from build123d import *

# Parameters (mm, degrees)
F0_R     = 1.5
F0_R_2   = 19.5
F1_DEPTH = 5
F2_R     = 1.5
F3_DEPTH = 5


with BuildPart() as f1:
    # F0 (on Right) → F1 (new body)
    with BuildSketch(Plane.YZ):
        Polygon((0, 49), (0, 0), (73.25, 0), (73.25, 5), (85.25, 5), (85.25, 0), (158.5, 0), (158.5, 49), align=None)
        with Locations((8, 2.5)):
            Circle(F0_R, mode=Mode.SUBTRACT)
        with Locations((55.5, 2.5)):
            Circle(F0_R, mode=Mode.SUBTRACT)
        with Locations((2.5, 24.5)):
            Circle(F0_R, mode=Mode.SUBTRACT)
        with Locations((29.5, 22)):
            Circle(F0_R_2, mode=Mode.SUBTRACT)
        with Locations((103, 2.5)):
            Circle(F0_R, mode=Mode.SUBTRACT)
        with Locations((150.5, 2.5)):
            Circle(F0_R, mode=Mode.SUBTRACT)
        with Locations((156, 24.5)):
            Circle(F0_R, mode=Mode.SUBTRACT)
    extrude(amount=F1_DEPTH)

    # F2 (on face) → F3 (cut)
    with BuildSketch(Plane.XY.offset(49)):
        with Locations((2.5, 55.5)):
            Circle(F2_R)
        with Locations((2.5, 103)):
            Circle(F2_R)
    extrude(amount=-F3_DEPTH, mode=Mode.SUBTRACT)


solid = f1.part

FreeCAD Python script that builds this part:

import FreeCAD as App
import Part
import Sketcher
from FreeCAD import Vector

doc = App.newDocument("Part")
body = doc.addObject("PartDesign::Body", "Body")

# Sketch on YZ plane
sketch1 = doc.addObject("Sketcher::SketchObject", "Sketch")
body.addObject(sketch1)
sketch1.AttachmentSupport = (doc.YZ_Plane, [""])
sketch1.MapMode = "FlatFace"
sketch1.addGeometry(Part.LineSegment(Vector(0, 49, 0), Vector(0, 0, 0)), False)
sketch1.addGeometry(Part.LineSegment(Vector(0, 0, 0), Vector(73.2, 0, 0)), False)
sketch1.addGeometry(Part.LineSegment(Vector(73.2, 0, 0), Vector(73.2, 5, 0)), False)
sketch1.addGeometry(Part.LineSegment(Vector(73.2, 5, 0), Vector(85.2, 5, 0)), False)
sketch1.addGeometry(Part.LineSegment(Vector(85.2, 5, 0), Vector(85.2, 0, 0)), False)
sketch1.addGeometry(Part.LineSegment(Vector(85.2, 0, 0), Vector(158.5, 0, 0)), False)
sketch1.addGeometry(Part.LineSegment(Vector(158.5, 0, 0), Vector(158.5, 49, 0)), False)
sketch1.addGeometry(Part.LineSegment(Vector(158.5, 49, 0), Vector(0, 49, 0)), False)
sketch1.addGeometry(Part.Circle(Vector(8, 2.5, 0), Vector(0, 0, 1), 1.5), False)
sketch1.addGeometry(Part.Circle(Vector(55.5, 2.5, 0), Vector(0, 0, 1), 1.5), False)
sketch1.addGeometry(Part.Circle(Vector(103, 2.5, 0), Vector(0, 0, 1), 1.5), False)
sketch1.addGeometry(Part.Circle(Vector(150.5, 2.5, 0), Vector(0, 0, 1), 1.5), False)
sketch1.addGeometry(Part.Circle(Vector(2.5, 24.5, 0), Vector(0, 0, 1), 1.5), False)
sketch1.addGeometry(Part.Circle(Vector(29.5, 22, 0), Vector(0, 0, 1), 19.5), False)
sketch1.addGeometry(Part.Circle(Vector(156, 24.5, 0), Vector(0, 0, 1), 1.5), False)
sketch1.addConstraint(Sketcher.Constraint("Coincident", 0, 2, 1, 1))
sketch1.addConstraint(Sketcher.Constraint("Coincident", 1, 2, 2, 1))
sketch1.addConstraint(Sketcher.Constraint("Coincident", 2, 2, 3, 1))
sketch1.addConstraint(Sketcher.Constraint("Coincident", 3, 2, 4, 1))
sketch1.addConstraint(Sketcher.Constraint("Coincident", 4, 2, 5, 1))
sketch1.addConstraint(Sketcher.Constraint("Coincident", 5, 2, 6, 1))
sketch1.addConstraint(Sketcher.Constraint("Coincident", 6, 2, 7, 1))
sketch1.addConstraint(Sketcher.Constraint("Coincident", 7, 2, 0, 1))
sketch1.addConstraint(Sketcher.Constraint("Vertical", 0))
sketch1.addConstraint(Sketcher.Constraint("Horizontal", 1))
sketch1.addConstraint(Sketcher.Constraint("Vertical", 2))
sketch1.addConstraint(Sketcher.Constraint("Horizontal", 3))
sketch1.addConstraint(Sketcher.Constraint("Vertical", 4))
sketch1.addConstraint(Sketcher.Constraint("Horizontal", 5))
sketch1.addConstraint(Sketcher.Constraint("Vertical", 6))
sketch1.addConstraint(Sketcher.Constraint("Horizontal", 7))
sketch1.addConstraint(Sketcher.Constraint("Coincident", 0, 2, -1, 1))
sketch1.addConstraint(Sketcher.Constraint("Equal", 8, 9))
sketch1.addConstraint(Sketcher.Constraint("Equal", 9, 10))
sketch1.addConstraint(Sketcher.Constraint("Equal", 10, 11))
sketch1.addConstraint(Sketcher.Constraint("Equal", 11, 12))
sketch1.addConstraint(Sketcher.Constraint("Equal", 12, 14))
sketch1.addConstraint(Sketcher.Constraint("PointOnObject", 4, 2, -1))
sketch1.addConstraint(Sketcher.Constraint("Horizontal", 8, 3, 9, 3))
sketch1.addConstraint(Sketcher.Constraint("Horizontal", 9, 3, 10, 3))
sketch1.addConstraint(Sketcher.Constraint("Horizontal", 10, 3, 11, 3))
sketch1.addConstraint(Sketcher.Constraint("Horizontal", 12, 3, 14, 3))
sketch1.addConstraint(Sketcher.Constraint("Equal", 1, 5))
sketch1.addConstraint(Sketcher.Constraint("Diameter", 8, 3.0))
sketch1.addConstraint(Sketcher.Constraint("Diameter", 13, 39.0))
sketch1.addConstraint(Sketcher.Constraint("DistanceX", 3, 1, 3, 2, 12.0))
sketch1.addConstraint(Sketcher.Constraint("DistanceY", 0, 2, 0, 1, 49.0))
sketch1.addConstraint(Sketcher.Constraint("DistanceY", 2, 1, 2, 2, 5.0))
sketch1.addConstraint(Sketcher.Constraint("DistanceX", 7, 2, 7, 1, 158.5))
sketch1.addConstraint(Sketcher.Constraint("DistanceX", -1, 1, 8, 3, 8.0))
sketch1.addConstraint(Sketcher.Constraint("DistanceX", -1, 1, 10, 3, 103.0))
sketch1.addConstraint(Sketcher.Constraint("DistanceY", -1, 1, 13, 3, 22.0))
sketch1.addConstraint(Sketcher.Constraint("DistanceX", -1, 1, 14, 3, 156.0))
sketch1.addConstraint(Sketcher.Constraint("DistanceX", 9, 3, 11, 3, 95.0))
sketch1.addConstraint(Sketcher.Constraint("DistanceY", 8, 3, 12, 3, 22.0))
sketch1.addConstraint(Sketcher.Constraint("DistanceX", 12, 3, 9, 3, 53.0))
sketch1.addConstraint(Sketcher.Constraint("DistanceX", 12, 3, 13, 3, 27.0))
sketch1.addConstraint(Sketcher.Constraint("DistanceX", 11, 3, 5, 2, 8.0))
sketch1.addConstraint(Sketcher.Constraint("DistanceY", -1, 1, 8, 3, 2.5))
pad1 = doc.addObject("PartDesign::Pad", "Pad")
body.addObject(pad1)
pad1.Profile = sketch1
pad1.Length = 5

# Sketch on XY plane
sketch2 = doc.addObject("Sketcher::SketchObject", "Sketch001")
body.addObject(sketch2)
sketch2.AttachmentSupport = (doc.XY_Plane, [""])
sketch2.MapMode = "FlatFace"
sketch2.AttachmentOffset = App.Placement(Vector(0, 0, 49), App.Rotation())
sketch2.addGeometry(Part.Circle(Vector(2.5, 55.5, 0), Vector(0, 0, 1), 1.5), False)
sketch2.addGeometry(Part.Circle(Vector(2.5, 103, 0), Vector(0, 0, 1), 1.5), False)
sketch2.addConstraint(Sketcher.Constraint("Equal", 0, 1))
sketch2.addConstraint(Sketcher.Constraint("Vertical", 0, 3, 1, 3))
sketch2.addConstraint(Sketcher.Constraint("Diameter", 0, 3.0))
sketch2.addConstraint(Sketcher.Constraint("DistanceY", -1, 1, 1, 3, 103.0))
sketch2.addConstraint(Sketcher.Constraint("DistanceX", -1, 1, 0, 3, 2.5))
sketch2.addConstraint(Sketcher.Constraint("DistanceY", -1, 1, 0, 3, 55.5))
pocket1 = doc.addObject("PartDesign::Pocket", "Pocket")
body.addObject(pocket1)
pocket1.Profile = sketch2
pocket1.Length = 5

doc.recompute()
